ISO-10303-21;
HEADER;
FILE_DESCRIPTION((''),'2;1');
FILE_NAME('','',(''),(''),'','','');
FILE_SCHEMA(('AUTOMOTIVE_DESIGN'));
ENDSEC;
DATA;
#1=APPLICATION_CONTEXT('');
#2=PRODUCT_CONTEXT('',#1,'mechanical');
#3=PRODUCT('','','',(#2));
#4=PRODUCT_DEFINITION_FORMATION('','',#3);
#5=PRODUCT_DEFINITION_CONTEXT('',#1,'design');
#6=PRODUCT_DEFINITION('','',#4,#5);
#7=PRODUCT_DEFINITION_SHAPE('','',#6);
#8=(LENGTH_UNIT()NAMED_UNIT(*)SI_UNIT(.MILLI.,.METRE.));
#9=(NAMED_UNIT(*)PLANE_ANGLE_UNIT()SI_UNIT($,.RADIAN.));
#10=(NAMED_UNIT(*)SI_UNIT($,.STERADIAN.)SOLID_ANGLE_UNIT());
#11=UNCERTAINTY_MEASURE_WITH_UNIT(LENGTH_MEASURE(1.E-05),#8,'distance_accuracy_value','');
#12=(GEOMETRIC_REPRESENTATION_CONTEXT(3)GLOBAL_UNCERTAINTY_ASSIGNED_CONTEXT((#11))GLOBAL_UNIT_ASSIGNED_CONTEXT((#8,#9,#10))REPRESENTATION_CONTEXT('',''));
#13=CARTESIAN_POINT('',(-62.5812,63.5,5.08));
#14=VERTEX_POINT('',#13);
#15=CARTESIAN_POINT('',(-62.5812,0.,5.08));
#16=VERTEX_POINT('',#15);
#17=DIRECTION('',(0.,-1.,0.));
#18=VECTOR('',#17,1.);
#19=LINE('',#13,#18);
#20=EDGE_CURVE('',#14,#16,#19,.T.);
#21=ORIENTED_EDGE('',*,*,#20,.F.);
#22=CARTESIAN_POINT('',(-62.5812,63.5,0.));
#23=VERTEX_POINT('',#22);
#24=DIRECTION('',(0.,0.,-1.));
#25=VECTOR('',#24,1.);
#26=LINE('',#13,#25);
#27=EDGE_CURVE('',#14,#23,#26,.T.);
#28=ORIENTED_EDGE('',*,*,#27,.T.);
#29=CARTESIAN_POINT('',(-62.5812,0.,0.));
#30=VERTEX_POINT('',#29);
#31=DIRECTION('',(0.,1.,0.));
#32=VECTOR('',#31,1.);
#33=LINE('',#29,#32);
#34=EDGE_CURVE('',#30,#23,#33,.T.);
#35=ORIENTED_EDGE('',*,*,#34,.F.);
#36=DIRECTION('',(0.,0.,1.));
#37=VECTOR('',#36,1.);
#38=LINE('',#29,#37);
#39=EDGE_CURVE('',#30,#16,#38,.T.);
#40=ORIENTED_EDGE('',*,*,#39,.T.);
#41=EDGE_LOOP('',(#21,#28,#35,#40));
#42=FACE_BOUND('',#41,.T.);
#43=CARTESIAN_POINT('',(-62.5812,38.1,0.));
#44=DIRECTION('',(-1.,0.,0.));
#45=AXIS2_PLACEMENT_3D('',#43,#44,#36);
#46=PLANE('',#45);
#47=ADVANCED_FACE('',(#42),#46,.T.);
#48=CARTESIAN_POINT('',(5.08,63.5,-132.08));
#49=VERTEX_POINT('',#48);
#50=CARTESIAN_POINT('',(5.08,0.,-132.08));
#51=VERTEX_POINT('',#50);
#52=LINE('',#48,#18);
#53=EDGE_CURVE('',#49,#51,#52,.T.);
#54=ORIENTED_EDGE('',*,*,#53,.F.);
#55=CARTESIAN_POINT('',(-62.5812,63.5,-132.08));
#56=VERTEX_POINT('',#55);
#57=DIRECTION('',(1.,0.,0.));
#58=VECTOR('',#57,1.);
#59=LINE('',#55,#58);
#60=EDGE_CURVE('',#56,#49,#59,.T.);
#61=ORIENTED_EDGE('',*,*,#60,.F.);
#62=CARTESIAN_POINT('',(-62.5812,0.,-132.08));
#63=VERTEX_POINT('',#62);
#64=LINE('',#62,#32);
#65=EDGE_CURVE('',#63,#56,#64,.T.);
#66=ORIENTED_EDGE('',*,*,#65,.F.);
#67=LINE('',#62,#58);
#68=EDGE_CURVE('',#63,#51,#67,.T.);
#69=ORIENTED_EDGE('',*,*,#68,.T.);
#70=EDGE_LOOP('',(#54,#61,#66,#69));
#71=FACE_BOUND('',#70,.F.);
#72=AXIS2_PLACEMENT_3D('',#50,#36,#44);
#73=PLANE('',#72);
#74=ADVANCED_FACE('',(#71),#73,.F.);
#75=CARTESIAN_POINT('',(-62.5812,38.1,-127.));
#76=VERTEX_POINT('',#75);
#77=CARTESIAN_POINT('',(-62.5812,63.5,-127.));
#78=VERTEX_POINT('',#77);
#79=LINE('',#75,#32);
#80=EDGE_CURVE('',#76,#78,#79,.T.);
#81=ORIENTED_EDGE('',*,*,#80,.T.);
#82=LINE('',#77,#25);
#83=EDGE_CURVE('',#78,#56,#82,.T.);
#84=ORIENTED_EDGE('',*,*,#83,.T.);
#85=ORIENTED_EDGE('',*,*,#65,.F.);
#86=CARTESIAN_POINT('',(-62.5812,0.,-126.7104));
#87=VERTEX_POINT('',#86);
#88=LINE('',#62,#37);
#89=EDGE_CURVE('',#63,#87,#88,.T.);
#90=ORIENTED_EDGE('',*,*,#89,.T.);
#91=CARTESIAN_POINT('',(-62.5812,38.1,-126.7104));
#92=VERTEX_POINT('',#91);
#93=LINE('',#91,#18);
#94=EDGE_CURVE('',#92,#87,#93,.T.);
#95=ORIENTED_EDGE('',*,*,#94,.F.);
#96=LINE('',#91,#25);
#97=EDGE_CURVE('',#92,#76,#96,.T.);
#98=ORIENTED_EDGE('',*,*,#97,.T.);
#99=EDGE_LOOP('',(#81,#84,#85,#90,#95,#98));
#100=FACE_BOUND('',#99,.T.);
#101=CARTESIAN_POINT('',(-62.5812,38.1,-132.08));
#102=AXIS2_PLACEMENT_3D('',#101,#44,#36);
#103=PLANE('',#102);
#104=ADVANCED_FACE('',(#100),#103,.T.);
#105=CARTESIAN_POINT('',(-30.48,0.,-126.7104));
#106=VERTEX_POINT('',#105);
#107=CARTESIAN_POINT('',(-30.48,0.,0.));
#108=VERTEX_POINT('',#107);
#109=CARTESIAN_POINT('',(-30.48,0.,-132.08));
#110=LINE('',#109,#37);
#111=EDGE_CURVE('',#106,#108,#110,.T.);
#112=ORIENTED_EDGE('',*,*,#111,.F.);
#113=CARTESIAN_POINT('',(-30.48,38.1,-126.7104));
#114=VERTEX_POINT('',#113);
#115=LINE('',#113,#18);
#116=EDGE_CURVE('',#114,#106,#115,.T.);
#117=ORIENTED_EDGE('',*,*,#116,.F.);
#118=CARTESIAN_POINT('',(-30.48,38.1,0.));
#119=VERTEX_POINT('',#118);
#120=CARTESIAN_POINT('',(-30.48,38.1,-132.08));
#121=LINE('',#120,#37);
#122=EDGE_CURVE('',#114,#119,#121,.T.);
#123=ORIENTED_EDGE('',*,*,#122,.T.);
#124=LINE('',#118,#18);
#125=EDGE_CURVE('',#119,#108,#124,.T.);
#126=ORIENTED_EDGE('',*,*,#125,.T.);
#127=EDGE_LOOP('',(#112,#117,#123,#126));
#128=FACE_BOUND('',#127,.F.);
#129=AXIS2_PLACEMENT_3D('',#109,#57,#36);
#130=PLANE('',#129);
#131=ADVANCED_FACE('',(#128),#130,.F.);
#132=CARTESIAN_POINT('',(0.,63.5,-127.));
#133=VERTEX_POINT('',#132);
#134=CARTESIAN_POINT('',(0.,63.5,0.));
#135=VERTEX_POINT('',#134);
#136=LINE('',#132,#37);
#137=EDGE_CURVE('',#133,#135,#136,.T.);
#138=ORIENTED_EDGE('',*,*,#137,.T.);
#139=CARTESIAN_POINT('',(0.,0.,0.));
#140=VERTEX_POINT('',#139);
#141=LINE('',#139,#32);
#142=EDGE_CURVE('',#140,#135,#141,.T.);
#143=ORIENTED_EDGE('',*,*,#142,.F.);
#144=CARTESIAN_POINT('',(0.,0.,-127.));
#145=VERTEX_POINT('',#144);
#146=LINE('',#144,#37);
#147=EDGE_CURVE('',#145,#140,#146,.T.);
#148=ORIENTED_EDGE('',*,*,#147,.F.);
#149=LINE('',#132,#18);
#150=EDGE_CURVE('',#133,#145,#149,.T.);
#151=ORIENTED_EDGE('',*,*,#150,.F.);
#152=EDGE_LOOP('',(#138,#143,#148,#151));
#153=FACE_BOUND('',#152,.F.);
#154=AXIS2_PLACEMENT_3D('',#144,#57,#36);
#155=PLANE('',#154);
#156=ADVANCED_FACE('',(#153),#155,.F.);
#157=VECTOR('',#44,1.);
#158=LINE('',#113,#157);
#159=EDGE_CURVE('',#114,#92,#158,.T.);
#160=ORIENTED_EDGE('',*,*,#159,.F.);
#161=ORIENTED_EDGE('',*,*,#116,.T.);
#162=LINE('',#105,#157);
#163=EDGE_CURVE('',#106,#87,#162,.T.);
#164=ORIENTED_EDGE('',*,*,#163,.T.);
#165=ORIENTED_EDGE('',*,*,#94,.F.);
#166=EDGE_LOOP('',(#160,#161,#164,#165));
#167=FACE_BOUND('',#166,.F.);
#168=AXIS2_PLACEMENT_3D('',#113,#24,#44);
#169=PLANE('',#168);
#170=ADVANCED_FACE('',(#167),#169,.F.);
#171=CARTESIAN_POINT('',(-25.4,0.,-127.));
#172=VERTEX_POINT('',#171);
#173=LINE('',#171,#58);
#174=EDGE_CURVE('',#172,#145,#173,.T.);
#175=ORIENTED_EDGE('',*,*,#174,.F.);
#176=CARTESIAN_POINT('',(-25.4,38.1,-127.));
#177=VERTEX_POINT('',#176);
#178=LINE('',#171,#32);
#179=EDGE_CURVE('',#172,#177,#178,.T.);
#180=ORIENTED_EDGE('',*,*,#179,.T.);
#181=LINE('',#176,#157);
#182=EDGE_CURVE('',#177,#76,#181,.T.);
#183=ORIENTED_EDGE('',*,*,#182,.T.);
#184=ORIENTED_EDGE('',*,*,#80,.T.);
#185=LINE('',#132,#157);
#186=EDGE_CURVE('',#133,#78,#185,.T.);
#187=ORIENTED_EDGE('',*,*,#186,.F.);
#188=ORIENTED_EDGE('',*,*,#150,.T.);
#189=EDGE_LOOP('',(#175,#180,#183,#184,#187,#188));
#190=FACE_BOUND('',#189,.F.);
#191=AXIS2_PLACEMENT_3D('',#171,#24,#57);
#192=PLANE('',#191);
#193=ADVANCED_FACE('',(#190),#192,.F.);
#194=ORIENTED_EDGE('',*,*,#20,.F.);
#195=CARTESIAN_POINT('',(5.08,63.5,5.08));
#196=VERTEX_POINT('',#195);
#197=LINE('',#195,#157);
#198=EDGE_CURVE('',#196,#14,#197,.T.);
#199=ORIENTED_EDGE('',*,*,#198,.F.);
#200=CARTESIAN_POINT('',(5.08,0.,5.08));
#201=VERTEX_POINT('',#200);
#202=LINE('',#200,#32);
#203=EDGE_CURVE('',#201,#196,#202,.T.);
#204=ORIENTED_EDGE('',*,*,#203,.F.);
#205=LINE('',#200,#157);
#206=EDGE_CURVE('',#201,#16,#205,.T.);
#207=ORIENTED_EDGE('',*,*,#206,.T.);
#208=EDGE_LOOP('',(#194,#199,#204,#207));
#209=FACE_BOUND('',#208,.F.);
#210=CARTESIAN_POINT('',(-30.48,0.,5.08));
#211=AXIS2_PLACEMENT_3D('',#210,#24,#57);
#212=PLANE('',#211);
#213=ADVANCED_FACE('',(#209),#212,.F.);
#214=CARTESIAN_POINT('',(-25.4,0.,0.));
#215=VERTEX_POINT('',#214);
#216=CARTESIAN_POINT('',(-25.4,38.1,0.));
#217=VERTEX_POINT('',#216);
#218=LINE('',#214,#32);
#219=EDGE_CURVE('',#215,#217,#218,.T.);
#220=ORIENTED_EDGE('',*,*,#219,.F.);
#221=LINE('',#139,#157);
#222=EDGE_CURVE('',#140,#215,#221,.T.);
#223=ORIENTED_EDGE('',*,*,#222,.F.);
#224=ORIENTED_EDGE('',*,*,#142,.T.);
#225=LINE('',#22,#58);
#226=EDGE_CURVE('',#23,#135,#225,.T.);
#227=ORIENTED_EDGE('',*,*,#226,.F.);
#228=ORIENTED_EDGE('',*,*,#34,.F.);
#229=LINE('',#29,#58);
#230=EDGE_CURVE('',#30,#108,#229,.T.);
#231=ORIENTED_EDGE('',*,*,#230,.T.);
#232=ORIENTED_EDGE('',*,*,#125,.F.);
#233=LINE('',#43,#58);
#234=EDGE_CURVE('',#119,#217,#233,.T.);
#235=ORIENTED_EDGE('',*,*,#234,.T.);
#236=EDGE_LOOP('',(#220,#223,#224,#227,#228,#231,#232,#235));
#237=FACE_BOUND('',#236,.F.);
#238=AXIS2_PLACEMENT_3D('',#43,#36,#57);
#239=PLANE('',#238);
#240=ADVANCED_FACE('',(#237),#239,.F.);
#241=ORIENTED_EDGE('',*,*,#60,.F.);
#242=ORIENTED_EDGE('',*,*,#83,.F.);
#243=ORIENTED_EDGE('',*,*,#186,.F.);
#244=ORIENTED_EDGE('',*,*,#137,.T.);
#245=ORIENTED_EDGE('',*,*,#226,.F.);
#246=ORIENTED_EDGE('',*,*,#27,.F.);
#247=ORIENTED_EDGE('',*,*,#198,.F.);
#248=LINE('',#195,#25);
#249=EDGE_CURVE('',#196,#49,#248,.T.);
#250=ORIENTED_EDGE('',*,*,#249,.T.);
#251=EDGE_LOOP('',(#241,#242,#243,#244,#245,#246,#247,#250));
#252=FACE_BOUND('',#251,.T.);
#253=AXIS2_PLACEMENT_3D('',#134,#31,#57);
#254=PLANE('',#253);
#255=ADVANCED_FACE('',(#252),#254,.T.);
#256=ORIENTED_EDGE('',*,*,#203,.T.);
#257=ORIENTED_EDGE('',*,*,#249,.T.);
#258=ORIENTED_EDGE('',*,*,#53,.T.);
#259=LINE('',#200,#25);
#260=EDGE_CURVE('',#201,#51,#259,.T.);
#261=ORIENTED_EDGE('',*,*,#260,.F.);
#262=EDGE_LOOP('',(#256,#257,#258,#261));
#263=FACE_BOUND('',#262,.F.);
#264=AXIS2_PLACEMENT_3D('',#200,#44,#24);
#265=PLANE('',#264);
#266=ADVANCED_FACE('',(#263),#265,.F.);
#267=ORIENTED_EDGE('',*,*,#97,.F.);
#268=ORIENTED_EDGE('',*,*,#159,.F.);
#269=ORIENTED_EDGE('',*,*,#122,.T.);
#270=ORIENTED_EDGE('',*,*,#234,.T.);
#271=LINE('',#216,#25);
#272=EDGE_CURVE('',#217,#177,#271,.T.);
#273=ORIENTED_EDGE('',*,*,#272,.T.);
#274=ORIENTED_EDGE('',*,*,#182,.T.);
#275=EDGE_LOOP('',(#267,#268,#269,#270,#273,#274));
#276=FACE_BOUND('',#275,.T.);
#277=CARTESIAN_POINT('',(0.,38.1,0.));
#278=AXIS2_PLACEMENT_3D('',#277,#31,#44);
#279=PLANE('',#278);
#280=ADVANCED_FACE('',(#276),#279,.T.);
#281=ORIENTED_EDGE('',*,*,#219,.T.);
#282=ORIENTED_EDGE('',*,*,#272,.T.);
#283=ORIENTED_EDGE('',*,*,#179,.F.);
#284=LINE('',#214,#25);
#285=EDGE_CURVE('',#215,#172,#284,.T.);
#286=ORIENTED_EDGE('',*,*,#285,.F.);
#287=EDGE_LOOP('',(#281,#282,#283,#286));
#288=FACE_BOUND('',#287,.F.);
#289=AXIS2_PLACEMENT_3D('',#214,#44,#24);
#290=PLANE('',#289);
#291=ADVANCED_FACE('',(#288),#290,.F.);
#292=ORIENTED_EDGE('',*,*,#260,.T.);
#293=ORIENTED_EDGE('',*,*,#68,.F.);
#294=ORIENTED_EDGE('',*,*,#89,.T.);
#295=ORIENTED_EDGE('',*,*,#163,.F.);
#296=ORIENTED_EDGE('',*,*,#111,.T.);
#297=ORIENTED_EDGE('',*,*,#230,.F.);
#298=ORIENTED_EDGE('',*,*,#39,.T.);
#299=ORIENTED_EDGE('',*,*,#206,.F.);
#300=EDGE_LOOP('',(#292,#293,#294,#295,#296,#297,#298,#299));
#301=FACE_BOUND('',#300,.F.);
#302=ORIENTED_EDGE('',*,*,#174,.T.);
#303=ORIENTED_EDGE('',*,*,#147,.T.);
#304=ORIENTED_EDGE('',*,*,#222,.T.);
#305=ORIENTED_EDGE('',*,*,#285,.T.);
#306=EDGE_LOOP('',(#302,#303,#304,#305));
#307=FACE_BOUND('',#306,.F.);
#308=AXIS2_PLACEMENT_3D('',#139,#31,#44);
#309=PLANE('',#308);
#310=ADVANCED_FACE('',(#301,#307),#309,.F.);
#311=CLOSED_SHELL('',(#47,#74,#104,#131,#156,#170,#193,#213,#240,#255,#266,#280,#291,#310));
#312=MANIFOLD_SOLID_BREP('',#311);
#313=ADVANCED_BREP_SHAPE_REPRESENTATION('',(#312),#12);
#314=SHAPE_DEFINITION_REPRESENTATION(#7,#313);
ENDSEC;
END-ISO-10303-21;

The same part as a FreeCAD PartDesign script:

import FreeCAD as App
import Part
import Sketcher
from FreeCAD import Vector
Q = App.Units.Quantity

doc = App.newDocument("Part")
params = doc.addObject("Spreadsheet::Sheet", "Params")
for row, (alias, value) in enumerate([
    ("sketch1_width", "1 in"),
    ("sketch1_height", "5 in"),
    ("pad1_length", "1.5 in"),
    ("sketch2_height", "5 in"),
    ("sketch2_height2", "5.4 in"),
    ("pad2_length", "1 in"),
    ("sketch3_height", "0.2 in"),
    ("pad3_length", "1.5 in"),
], start=1):
    params.set(f"A{row}", alias)
    params.set(f"B{row}", "=" + value)
    params.setAlias(f"B{row}", alias)

body = doc.addObject("PartDesign::Body", "Body")

sketch1 = doc.addObject("Sketcher::SketchObject", "Sketch")
body.addObject(sketch1)
sketch1.AttachmentSupport = (doc.XZ_Plane, [""])
sketch1.MapMode = "FlatFace"
sketch1.addGeometry([
    Part.LineSegment(Vector(-30, -132, 0), Vector(-30, 5, 0)),
    Part.LineSegment(Vector(-30, 5, 0), Vector(5, 5, 0)),
    Part.LineSegment(Vector(5, 5, 0), Vector(5, -132, 0)),
    Part.LineSegment(Vector(5, -132, 0), Vector(-30, -132, 0)),
    Part.LineSegment(Vector(0, -127, 0), Vector(0, 0, 0)),
    Part.LineSegment(Vector(0, 0, 0), Vector(-25, 0, 0)),
    Part.LineSegment(Vector(-25, 0, 0), Vector(-25, -127, 0)),
    Part.LineSegment(Vector(-25, -127, 0), Vector(0, -127, 0)),
], False)
sketch1.addConstraint([
    Sketcher.Constraint("Coincident", 0, 2, 1, 1),
    Sketcher.Constraint("Coincident", 1, 2, 2, 1),
    Sketcher.Constraint("Coincident", 2, 2, 3, 1),
    Sketcher.Constraint("Coincident", 3, 2, 0, 1),
    Sketcher.Constraint("Coincident", 4, 2, 5, 1),
    Sketcher.Constraint("Coincident", 5, 2, 6, 1),
    Sketcher.Constraint("Coincident", 6, 2, 7, 1),
    Sketcher.Constraint("Coincident", 7, 2, 4, 1),
    Sketcher.Constraint("Vertical", 0),
    Sketcher.Constraint("Horizontal", 1),
    Sketcher.Constraint("Vertical", 2),
    Sketcher.Constraint("Horizontal", 3),
    Sketcher.Constraint("Vertical", 4),
    Sketcher.Constraint("Horizontal", 5),
    Sketcher.Constraint("Vertical", 6),
    Sketcher.Constraint("Horizontal", 7),
    Sketcher.Constraint("Coincident", 4, 2, -1, 1),
    Sketcher.Constraint("DistanceX", 5, 2, 5, 1, Q("1 in")),
    Sketcher.Constraint("DistanceY", 4, 1, 4, 2, Q("5 in")),
    Sketcher.Constraint("DistanceY", -1, 1, 0, 2, Q("0.2 in")),
    Sketcher.Constraint("DistanceX", -1, 1, 1, 2, Q("0.2 in")),
    Sketcher.Constraint("DistanceX", 0, 2, 5, 2, Q("0.2 in")),
    Sketcher.Constraint("DistanceY", 3, 2, 6, 2, Q("0.2 in")),
])
sketch1.setExpression("Constraints[17]", "Params.sketch1_width")
sketch1.setExpression("Constraints[18]", "Params.sketch1_height")
pad1 = doc.addObject("PartDesign::Pad", "Pad")
body.addObject(pad1)
pad1.Profile = sketch1
pad1.setExpression("Length", "Params.pad1_length")
pad1.Reversed = True

sketch2 = doc.addObject("Sketcher::SketchObject", "Sketch001")
body.addObject(sketch2)
sketch2.AttachmentSupport = (doc.XZ_Plane, [""])
sketch2.MapMode = "FlatFace"
sketch2.AttachmentOffset = App.Placement(Vector(0, 0, -1.5 * 25.4), App.Rotation())
sketch2.addGeometry([
    Part.LineSegment(Vector(-63, 5, 0), Vector(5, 5, 0)),
    Part.LineSegment(Vector(5, 5, 0), Vector(5, -132, 0)),
    Part.LineSegment(Vector(5, -132, 0), Vector(-63, -132, 0)),
    Part.LineSegment(Vector(-63, -132, 0), Vector(-63, -127, 0)),
    Part.LineSegment(Vector(-63, -127, 0), Vector(0, -127, 0)),
    Part.LineSegment(Vector(0, -127, 0), Vector(0, 0, 0)),
    Part.LineSegment(Vector(0, 0, 0), Vector(-63, 0, 0)),
    Part.LineSegment(Vector(-63, 0, 0), Vector(-63, 5, 0)),
], False)
sketch2.addConstraint([
    Sketcher.Constraint("Coincident", 0, 2, 1, 1),
    Sketcher.Constraint("Coincident", 1, 2, 2, 1),
    Sketcher.Constraint("Coincident", 2, 2, 3, 1),
    Sketcher.Constraint("Coincident", 3, 2, 4, 1),
    Sketcher.Constraint("Coincident", 4, 2, 5, 1),
    Sketcher.Constraint("Coincident", 5, 2, 6, 1),
    Sketcher.Constraint("Coincident", 6, 2, 7, 1),
    Sketcher.Constraint("Coincident", 7, 2, 0, 1),
    Sketcher.Constraint("Horizontal", 0),
    Sketcher.Constraint("Vertical", 1),
    Sketcher.Constraint("Horizontal", 2),
    Sketcher.Constraint("Vertical", 3),
    Sketcher.Constraint("Horizontal", 4),
    Sketcher.Constraint("Vertical", 5),
    Sketcher.Constraint("Horizontal", 6),
    Sketcher.Constraint("Vertical", 7),
    Sketcher.Constraint("Coincident", 5, 2, -1, 1),
    Sketcher.Constraint("Vertical", 3, 2, 6, 2),
    Sketcher.Constraint("Equal", 3, 7),
    Sketcher.Constraint("DistanceY", 5, 1, 5, 2, Q("5 in")),
    Sketcher.Constraint("DistanceY", 1, 2, 1, 1, Q("5.4 in")),
    Sketcher.Constraint("DistanceX", -1, 1, 0, 2, Q("0.2 in")),
    Sketcher.Constraint("DistanceX", 0, 1, 0, 2, 67.6612),
])
sketch2.setExpression("Constraints[19]", "Params.sketch2_height")
sketch2.setExpression("Constraints[20]", "Params.sketch2_height2")
pad2 = doc.addObject("PartDesign::Pad", "Pad001")
body.addObject(pad2)
pad2.Profile = sketch2
pad2.setExpression("Length", "Params.pad2_length")
pad2.Reversed = True

sketch3 = doc.addObject("Sketcher::SketchObject", "Sketch002")
body.addObject(sketch3)
sketch3.AttachmentSupport = (doc.XZ_Plane, [""])
sketch3.MapMode = "FlatFace"
sketch3.AttachmentOffset = App.Placement(Vector(0, 0, -1.5 * 25.4), App.Rotation())
sketch3.addGeometry([
    Part.LineSegment(Vector(-63, 0, 0), Vector(-30, 0, 0)),
    Part.LineSegment(Vector(-30, 0, 0), Vector(-30, 5, 0)),
    Part.LineSegment(Vector(-30, 5, 0), Vector(-63, 5, 0)),
    Part.LineSegment(Vector(-63, 5, 0), Vector(-63, 0, 0)),
    Part.LineSegment(Vector(-63, -127, 0), Vector(-63, -132, 0)),
    Part.LineSegment(Vector(-63, -132, 0), Vector(-30, -132, 0)),
    Part.LineSegment(Vector(-30, -132, 0), Vector(-30, -127, 0)),
    Part.LineSegment(Vector(-30, -127, 0), Vector(-63, -127, 0)),
], False)
sketch3.addConstraint([
    Sketcher.Constraint("Coincident", 0, 2, 1, 1),
    Sketcher.Constraint("Coincident", 1, 2, 2, 1),
    Sketcher.Constraint("Coincident", 2, 2, 3, 1),
    Sketcher.Constraint("Coincident", 3, 2, 0, 1),
    Sketcher.Constraint("Coincident", 4, 2, 5, 1),
    Sketcher.Constraint("Coincident", 5, 2, 6, 1),
    Sketcher.Constraint("Coincident", 6, 2, 7, 1),
    Sketcher.Constraint("Coincident", 7, 2, 4, 1),
    Sketcher.Constraint("Horizontal", 0),
    Sketcher.Constraint("Vertical", 1),
    Sketcher.Constraint("Horizontal", 2),
    Sketcher.Constraint("Vertical", 3),
    Sketcher.Constraint("Vertical", 4),
    Sketcher.Constraint("Horizontal", 5),
    Sketcher.Constraint("Vertical", 6),
    Sketcher.Constraint("Horizontal", 7),
    Sketcher.Constraint("PointOnObject", 0, 2, -1),
    Sketcher.Constraint("Vertical", 3, 2, 4, 2),
    Sketcher.Constraint("Vertical", 1, 2, 5, 2),
    Sketcher.Constraint("DistanceY", 1, 1, 1, 2, Q("0.2 in")),
    Sketcher.Constraint("DistanceX", 0, 2, -1, 1, Q("1.2 in")),
    Sketcher.Constraint("DistanceY", 4, 2, -1, 1, Q("5.2 in")),
    Sketcher.Constraint("DistanceY", 4, 2, 4, 1, Q("0.2114 in")),
    Sketcher.Constraint("DistanceX", 0, 1, 0, 2, 32.1012),
])
sketch3.setExpression("Constraints[19]", "Params.sketch3_height")
pad3 = doc.addObject("PartDesign::Pad", "Pad002")
body.addObject(pad3)
pad3.Profile = sketch3
pad3.setExpression("Length", "Params.pad3_length")

doc.recompute()
